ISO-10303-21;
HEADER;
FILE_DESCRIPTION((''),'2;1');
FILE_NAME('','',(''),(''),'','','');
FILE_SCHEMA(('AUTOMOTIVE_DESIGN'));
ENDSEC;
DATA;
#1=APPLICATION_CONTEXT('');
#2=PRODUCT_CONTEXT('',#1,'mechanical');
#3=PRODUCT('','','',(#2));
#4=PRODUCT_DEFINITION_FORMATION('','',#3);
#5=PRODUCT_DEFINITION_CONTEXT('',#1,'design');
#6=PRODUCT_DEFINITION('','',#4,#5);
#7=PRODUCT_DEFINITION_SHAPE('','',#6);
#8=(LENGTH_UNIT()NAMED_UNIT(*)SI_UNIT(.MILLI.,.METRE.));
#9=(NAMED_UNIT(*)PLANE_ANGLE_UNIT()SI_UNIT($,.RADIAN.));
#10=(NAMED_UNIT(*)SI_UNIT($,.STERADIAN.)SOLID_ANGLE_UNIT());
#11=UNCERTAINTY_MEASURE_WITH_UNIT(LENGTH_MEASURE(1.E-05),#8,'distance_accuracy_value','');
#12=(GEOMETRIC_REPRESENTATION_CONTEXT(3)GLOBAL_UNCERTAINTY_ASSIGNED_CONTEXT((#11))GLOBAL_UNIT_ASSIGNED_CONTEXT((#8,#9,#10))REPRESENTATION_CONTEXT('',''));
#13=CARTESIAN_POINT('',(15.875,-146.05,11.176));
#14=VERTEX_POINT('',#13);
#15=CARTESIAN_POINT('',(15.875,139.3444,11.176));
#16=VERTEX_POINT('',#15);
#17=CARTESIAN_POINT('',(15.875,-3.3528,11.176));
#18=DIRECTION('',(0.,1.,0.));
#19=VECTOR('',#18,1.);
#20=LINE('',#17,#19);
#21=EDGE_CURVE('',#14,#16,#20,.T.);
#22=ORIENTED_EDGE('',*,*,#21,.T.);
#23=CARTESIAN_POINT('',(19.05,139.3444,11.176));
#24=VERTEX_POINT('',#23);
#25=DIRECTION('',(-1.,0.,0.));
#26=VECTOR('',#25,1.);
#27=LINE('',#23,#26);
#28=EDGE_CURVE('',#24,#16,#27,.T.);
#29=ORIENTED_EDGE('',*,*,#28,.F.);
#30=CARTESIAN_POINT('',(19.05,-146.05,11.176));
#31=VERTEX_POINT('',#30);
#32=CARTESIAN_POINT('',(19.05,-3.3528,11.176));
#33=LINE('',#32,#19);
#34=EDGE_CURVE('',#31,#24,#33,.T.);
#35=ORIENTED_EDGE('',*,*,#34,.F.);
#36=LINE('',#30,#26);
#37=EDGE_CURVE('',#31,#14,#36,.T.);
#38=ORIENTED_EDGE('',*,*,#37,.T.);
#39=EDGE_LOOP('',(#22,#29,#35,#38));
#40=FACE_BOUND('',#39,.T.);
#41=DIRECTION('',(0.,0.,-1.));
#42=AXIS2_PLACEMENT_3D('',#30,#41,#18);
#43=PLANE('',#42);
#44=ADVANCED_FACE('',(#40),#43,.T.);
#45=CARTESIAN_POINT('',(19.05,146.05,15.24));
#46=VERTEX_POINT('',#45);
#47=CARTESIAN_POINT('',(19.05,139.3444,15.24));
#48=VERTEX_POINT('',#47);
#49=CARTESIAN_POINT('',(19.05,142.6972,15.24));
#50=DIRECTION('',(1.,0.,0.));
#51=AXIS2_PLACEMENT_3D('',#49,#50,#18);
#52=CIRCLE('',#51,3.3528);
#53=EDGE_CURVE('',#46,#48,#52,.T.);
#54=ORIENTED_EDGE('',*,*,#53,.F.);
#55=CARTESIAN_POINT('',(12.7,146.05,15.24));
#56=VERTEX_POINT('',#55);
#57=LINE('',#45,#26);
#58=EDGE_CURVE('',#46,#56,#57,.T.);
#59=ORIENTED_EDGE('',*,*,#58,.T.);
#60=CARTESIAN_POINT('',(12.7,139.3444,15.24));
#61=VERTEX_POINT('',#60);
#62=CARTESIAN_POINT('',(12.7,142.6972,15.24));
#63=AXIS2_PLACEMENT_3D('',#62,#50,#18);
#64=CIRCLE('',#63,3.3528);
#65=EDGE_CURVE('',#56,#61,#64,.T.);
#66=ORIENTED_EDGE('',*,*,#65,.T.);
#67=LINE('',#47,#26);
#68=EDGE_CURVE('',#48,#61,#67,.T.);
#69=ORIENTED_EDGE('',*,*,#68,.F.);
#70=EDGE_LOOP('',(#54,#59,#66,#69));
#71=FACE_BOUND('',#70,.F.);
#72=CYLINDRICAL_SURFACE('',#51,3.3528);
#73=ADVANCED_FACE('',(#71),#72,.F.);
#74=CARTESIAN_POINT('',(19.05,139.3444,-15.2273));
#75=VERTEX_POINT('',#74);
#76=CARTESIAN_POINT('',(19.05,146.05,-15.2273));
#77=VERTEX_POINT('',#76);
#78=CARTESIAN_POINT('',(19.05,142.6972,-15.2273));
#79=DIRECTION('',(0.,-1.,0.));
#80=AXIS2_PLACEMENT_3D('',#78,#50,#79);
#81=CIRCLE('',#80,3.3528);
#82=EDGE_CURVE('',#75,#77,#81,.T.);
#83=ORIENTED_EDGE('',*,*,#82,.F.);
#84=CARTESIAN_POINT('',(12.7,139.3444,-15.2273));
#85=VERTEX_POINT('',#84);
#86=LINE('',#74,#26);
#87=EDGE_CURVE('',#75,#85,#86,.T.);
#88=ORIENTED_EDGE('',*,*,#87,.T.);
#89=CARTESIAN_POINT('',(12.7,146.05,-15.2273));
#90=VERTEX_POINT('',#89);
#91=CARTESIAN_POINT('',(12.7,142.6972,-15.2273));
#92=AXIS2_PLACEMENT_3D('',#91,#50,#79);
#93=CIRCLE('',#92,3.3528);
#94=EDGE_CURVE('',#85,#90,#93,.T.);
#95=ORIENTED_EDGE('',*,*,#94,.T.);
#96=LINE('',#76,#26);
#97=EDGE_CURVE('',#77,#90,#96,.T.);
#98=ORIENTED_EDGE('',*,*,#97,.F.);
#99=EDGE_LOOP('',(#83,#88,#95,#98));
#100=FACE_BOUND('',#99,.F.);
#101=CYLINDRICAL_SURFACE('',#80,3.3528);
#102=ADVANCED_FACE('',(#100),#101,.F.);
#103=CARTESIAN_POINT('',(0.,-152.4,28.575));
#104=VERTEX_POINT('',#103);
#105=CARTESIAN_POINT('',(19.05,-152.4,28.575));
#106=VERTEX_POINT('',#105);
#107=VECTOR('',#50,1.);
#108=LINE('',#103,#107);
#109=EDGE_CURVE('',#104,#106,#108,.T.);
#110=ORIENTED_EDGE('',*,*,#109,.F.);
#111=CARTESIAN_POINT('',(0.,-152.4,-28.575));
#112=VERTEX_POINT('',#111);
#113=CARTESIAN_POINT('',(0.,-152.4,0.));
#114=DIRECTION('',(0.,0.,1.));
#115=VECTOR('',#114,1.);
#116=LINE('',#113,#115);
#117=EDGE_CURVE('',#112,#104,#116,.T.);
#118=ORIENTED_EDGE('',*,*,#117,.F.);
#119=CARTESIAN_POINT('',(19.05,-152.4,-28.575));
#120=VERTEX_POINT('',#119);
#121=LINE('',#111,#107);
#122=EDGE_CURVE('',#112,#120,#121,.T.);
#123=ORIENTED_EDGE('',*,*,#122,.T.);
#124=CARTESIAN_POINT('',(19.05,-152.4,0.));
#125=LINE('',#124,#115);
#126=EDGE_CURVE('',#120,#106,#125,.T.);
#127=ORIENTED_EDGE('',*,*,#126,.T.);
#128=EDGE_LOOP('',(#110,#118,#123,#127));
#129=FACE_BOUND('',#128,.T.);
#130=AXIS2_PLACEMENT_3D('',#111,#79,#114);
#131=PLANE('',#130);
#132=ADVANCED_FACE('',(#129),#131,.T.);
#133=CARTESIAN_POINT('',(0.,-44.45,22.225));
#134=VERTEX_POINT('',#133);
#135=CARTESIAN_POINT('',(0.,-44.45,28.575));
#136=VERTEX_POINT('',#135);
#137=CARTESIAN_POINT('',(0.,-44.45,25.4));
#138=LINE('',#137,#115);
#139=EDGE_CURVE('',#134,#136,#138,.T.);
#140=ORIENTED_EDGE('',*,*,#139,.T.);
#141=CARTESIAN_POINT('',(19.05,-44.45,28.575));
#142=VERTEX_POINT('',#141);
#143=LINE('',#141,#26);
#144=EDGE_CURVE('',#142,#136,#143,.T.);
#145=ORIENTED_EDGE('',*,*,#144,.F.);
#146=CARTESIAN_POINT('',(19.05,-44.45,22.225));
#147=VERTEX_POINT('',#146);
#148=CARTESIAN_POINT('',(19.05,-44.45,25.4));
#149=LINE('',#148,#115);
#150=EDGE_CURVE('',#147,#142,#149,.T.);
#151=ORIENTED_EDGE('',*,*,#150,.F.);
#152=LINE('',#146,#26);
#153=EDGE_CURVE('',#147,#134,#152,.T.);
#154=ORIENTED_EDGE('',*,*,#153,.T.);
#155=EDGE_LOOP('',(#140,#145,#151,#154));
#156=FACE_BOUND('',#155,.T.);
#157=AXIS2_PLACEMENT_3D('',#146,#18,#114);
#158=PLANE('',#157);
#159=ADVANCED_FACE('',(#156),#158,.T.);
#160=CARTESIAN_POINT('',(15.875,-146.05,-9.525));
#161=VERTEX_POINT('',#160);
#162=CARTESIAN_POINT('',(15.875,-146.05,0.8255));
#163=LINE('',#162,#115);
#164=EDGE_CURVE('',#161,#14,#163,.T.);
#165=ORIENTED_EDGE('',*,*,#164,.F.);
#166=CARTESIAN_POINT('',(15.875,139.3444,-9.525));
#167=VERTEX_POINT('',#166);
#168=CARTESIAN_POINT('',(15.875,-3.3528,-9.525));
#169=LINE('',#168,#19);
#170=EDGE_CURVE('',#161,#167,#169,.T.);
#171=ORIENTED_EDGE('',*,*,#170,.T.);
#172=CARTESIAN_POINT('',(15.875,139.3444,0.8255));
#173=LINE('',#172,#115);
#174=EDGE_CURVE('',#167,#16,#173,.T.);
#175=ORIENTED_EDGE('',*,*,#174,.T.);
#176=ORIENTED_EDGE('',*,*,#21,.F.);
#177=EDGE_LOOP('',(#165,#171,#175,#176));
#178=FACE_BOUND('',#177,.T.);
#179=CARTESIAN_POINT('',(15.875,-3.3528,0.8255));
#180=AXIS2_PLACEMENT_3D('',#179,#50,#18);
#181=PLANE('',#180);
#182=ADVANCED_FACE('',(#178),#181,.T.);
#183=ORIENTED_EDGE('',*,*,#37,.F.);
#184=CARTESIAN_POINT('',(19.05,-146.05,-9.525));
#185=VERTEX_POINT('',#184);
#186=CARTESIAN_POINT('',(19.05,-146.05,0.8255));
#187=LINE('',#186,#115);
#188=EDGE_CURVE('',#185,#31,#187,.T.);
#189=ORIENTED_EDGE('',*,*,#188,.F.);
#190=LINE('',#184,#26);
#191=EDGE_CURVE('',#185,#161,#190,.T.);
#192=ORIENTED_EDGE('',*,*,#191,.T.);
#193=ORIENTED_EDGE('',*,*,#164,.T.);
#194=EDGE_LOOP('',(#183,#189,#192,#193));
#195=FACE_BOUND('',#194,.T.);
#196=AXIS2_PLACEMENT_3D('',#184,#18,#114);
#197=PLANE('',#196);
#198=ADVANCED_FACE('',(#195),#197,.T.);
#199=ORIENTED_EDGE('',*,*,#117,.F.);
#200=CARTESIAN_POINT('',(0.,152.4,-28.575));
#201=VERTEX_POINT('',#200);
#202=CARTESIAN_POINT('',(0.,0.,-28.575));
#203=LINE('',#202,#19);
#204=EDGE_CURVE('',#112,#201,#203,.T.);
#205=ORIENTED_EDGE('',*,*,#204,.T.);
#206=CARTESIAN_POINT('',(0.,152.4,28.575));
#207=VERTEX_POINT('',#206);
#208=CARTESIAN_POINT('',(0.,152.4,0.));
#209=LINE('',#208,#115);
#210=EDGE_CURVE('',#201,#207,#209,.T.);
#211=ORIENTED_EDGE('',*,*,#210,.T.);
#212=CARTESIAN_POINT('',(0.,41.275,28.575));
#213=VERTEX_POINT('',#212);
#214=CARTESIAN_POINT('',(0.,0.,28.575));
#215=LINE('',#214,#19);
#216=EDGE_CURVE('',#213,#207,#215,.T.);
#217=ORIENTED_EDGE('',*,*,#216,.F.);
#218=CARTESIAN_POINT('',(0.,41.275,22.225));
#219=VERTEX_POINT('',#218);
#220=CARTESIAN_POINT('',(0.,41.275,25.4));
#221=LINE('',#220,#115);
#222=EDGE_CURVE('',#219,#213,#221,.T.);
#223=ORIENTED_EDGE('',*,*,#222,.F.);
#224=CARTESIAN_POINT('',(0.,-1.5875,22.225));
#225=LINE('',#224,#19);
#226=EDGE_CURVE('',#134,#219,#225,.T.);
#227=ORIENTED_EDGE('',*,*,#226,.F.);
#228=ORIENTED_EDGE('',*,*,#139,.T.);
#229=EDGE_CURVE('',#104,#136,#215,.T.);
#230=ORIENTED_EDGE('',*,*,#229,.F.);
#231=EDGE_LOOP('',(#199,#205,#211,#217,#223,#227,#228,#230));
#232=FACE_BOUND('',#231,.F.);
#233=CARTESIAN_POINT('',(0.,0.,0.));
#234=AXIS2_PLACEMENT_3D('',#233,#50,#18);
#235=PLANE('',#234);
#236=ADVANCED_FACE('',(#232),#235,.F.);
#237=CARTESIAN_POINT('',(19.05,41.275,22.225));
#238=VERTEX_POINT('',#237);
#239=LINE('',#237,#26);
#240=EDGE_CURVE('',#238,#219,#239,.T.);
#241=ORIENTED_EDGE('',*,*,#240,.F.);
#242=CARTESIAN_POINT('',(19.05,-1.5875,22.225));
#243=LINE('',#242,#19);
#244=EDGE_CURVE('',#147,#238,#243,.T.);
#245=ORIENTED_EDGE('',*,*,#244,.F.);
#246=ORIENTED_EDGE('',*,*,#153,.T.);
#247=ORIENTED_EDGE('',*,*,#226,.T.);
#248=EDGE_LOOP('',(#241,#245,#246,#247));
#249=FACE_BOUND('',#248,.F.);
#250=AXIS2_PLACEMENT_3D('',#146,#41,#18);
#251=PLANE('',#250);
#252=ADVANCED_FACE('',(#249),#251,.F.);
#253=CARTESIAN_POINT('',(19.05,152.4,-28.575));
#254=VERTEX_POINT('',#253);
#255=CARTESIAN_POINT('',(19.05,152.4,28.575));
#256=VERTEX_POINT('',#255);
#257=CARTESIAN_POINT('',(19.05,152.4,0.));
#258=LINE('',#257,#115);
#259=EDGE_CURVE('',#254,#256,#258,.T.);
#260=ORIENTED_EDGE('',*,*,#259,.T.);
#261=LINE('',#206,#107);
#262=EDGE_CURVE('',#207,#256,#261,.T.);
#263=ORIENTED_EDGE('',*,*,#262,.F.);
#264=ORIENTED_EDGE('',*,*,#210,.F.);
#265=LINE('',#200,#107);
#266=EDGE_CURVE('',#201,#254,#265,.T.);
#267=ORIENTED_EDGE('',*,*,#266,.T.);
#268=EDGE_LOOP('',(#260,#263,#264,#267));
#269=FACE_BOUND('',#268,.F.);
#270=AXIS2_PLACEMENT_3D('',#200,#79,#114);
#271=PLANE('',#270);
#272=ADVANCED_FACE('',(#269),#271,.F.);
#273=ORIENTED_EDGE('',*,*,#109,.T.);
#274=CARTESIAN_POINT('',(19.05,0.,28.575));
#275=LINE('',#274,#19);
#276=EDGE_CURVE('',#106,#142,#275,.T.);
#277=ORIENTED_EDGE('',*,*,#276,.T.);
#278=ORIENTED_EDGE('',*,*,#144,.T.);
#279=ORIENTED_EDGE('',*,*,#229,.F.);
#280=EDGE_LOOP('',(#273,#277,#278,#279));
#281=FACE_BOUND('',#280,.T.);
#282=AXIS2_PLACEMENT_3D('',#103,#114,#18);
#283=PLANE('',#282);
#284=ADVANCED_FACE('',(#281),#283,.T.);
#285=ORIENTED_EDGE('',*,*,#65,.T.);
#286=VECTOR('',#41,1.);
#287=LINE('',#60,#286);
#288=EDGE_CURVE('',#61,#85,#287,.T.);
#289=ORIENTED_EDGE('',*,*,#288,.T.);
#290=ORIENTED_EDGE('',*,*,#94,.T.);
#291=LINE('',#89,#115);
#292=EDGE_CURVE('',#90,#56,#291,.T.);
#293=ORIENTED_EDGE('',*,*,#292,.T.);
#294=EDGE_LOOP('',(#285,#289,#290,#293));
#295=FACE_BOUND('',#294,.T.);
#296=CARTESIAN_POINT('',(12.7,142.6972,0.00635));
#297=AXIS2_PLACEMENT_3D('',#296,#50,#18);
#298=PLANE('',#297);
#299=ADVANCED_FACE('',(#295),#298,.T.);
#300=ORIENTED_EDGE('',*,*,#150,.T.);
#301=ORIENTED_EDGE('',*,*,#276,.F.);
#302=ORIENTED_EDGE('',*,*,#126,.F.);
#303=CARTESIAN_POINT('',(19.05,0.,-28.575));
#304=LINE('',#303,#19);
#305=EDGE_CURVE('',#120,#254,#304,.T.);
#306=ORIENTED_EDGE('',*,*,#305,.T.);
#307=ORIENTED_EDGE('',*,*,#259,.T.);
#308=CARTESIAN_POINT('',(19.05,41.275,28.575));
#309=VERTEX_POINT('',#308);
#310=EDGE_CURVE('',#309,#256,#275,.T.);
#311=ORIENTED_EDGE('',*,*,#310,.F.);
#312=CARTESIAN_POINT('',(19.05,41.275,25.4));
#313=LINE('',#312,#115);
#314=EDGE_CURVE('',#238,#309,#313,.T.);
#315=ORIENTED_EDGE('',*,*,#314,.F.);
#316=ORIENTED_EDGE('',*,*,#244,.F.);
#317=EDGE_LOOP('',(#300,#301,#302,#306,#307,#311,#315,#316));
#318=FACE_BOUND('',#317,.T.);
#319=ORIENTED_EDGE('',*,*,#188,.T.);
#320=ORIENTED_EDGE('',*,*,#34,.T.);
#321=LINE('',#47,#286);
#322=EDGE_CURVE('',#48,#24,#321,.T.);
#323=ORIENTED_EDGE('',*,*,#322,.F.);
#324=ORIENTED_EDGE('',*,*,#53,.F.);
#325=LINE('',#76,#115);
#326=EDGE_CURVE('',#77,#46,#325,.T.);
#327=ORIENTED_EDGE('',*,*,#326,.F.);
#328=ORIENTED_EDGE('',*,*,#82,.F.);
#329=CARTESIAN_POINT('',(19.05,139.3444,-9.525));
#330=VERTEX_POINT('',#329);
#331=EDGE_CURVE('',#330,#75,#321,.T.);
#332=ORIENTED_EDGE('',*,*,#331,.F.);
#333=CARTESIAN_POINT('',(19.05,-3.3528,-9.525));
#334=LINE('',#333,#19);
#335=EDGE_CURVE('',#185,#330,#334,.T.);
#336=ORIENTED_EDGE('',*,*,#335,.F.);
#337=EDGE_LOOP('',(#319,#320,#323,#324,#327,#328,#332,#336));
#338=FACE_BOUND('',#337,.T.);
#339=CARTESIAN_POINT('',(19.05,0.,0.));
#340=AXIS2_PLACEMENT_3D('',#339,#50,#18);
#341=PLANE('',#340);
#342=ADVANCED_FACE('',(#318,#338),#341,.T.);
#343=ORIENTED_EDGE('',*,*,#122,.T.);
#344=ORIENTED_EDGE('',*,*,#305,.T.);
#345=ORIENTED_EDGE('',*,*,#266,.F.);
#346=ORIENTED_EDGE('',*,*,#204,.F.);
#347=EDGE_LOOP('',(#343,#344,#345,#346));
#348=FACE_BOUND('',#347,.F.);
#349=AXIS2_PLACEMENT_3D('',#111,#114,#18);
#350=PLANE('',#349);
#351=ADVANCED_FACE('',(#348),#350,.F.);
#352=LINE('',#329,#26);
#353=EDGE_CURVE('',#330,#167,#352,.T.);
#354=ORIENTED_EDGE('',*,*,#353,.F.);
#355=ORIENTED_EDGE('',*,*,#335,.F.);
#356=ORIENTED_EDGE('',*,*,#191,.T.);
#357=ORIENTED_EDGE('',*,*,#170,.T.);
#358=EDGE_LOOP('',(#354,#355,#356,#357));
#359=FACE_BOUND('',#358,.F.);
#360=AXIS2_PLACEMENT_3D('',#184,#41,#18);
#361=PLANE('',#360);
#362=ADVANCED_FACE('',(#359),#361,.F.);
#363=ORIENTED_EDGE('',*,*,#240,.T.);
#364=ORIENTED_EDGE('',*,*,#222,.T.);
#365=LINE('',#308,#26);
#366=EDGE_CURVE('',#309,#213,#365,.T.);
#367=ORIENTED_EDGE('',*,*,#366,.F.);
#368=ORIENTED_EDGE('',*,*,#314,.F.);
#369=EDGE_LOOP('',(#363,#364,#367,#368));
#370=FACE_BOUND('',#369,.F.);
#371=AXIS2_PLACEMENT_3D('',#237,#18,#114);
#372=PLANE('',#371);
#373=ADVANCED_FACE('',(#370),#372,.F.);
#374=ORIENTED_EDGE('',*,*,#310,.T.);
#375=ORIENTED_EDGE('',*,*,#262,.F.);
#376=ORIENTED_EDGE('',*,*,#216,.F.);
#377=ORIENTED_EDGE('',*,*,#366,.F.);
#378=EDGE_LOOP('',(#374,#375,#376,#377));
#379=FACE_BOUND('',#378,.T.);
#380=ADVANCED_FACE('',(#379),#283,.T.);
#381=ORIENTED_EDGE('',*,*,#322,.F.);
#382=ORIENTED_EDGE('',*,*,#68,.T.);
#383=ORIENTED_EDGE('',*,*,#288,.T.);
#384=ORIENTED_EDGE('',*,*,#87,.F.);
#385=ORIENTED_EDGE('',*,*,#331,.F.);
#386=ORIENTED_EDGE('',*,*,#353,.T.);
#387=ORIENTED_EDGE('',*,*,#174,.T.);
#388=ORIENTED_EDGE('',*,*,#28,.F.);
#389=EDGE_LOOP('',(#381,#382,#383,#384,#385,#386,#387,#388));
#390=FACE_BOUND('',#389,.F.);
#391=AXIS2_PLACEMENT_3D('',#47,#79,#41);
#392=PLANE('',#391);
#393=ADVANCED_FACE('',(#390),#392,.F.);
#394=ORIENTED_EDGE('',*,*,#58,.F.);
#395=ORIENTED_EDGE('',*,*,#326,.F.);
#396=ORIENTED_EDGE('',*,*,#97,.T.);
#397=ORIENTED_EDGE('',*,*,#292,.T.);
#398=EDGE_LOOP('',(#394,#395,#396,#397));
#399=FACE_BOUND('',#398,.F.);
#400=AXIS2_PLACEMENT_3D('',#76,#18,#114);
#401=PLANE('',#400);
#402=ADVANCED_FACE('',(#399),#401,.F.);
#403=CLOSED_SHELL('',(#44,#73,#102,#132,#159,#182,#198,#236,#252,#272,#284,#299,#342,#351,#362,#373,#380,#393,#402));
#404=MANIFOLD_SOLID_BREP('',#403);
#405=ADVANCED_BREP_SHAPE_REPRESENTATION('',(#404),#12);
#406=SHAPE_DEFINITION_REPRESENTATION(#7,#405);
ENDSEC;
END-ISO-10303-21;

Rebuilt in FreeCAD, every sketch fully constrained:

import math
import FreeCAD as App
import Part
import Sketcher
from FreeCAD import Vector
Q = App.Units.Quantity

doc = App.newDocument("Part")
params = doc.addObject("Spreadsheet::Sheet", "Params")
for row, (alias, value) in enumerate([
    ("sketch1_width", "12 in"),
    ("sketch1_height", "2.25 in"),
    ("pad1_length", "0.75 in"),
    ("sketch2_radius", "0.132 in"),
    ("pocket1_length", "0.25 in"),
    ("sketch3_width", "11.236 in"),
    ("sketch3_height", "0.815 in"),
    ("pocket2_length", "0.125 in"),
    ("sketch4_height", "0.25 in"),
    ("sketch4_width", "3.375 in"),
], start=1):
    params.set(f"A{row}", alias)
    params.set(f"B{row}", "=" + value)
    params.setAlias(f"B{row}", alias)

body = doc.addObject("PartDesign::Body", "Body")

sketch1 = body.newObject("Sketcher::SketchObject", "Sketch")
sketch1.AttachmentSupport = (doc.getObject("YZ_Plane"), [""])
sketch1.MapMode = "FlatFace"
sketch1.addGeometry([
    Part.LineSegment(Vector(-152.4, 28.575, 0), Vector(-152.4, -28.575, 0)),
    Part.LineSegment(Vector(-152.4, -28.575, 0), Vector(152.4, -28.575, 0)),
    Part.LineSegment(Vector(152.4, -28.575, 0), Vector(152.4, 28.575, 0)),
    Part.LineSegment(Vector(152.4, 28.575, 0), Vector(-152.4, 28.575, 0)),
], False)
sketch1.addConstraint([
    Sketcher.Constraint("Coincident", 0, 2, 1, 1),
    Sketcher.Constraint("Coincident", 1, 2, 2, 1),
    Sketcher.Constraint("Coincident", 2, 2, 3, 1),
    Sketcher.Constraint("Coincident", 3, 2, 0, 1),
    Sketcher.Constraint("Vertical", 0),
    Sketcher.Constraint("Horizontal", 1),
    Sketcher.Constraint("Vertical", 2),
    Sketcher.Constraint("Horizontal", 3),
    Sketcher.Constraint("Symmetric", 0, 2, 2, 2, -1, 1),
    Sketcher.Constraint("DistanceX", 1, 1, 1, 2, Q("12 in")),
    Sketcher.Constraint("DistanceY", 0, 2, 0, 1, Q("2.25 in")),
])
sketch1.setExpression("Constraints[9]", "Params.sketch1_width")
sketch1.setExpression("Constraints[10]", "Params.sketch1_height")
pad1 = body.newObject("PartDesign::Pad", "Pad")
pad1.Profile = sketch1
pad1.setExpression("Length", "Params.pad1_length")

sketch2 = body.newObject("Sketcher::SketchObject", "Sketch001")
sketch2.AttachmentSupport = (doc.getObject("YZ_Plane"), [""])
sketch2.MapMode = "FlatFace"
sketch2.AttachmentOffset = App.Placement(Vector(0, 0, 0.75 * 25.4), App.Rotation())
sketch2.addGeometry([
    Part.ArcOfCircle(Part.Circle(Vector(142.6972, 15.24, 0), Vector(0, 0, 1), 3.3528), math.radians(0), math.radians(180)),
    Part.LineSegment(Vector(139.3444, 15.24, 0), Vector(139.3444, -15.2273, 0)),
    Part.ArcOfCircle(Part.Circle(Vector(142.6972, -15.2273, 0), Vector(0, 0, 1), 3.3528), math.radians(180), math.radians(360)),
    Part.LineSegment(Vector(146.05, -15.2273, 0), Vector(146.05, 15.24, 0)),
], False)
sketch2.addConstraint([
    Sketcher.Constraint("Tangent", 0, 2, 1, 1),
    Sketcher.Constraint("Tangent", 1, 2, 2, 1),
    Sketcher.Constraint("Tangent", 2, 2, 3, 1),
    Sketcher.Constraint("Tangent", 3, 2, 0, 1),
    Sketcher.Constraint("Vertical", 1),
    Sketcher.Constraint("Vertical", 3),
    Sketcher.Constraint("Radius", 0, Q("0.132 in")),
    Sketcher.Constraint("DistanceY", -1, 1, 0, 3, Q("0.6 in")),
    Sketcher.Constraint("DistanceX", -1, 1, 2, 2, Q("5.75 in")),
    Sketcher.Constraint("DistanceY", 1, 2, 1, 1, Q("1.1995 in")),
])
sketch2.setExpression("Constraints[6]", "Params.sketch2_radius")
pocket1 = body.newObject("PartDesign::Pocket", "Pocket")
pocket1.Profile = sketch2
pocket1.setExpression("Length", "Params.pocket1_length")

sketch3 = body.newObject("Sketcher::SketchObject", "Sketch002")
sketch3.AttachmentSupport = (doc.getObject("YZ_Plane"), [""])
sketch3.MapMode = "FlatFace"
sketch3.AttachmentOffset = App.Placement(Vector(0, 0, 0.75 * 25.4), App.Rotation())
sketch3.addGeometry([
    Part.LineSegment(Vector(-146.05, 11.176, 0), Vector(-146.05, -9.525, 0)),
    Part.LineSegment(Vector(-146.05, -9.525, 0), Vector(139.3444, -9.525, 0)),
    Part.LineSegment(Vector(139.3444, -9.525, 0), Vector(139.3444, 11.176, 0)),
    Part.LineSegment(Vector(139.3444, 11.176, 0), Vector(-146.05, 11.176, 0)),
], False)
sketch3.addConstraint([
    Sketcher.Constraint("Coincident", 0, 2, 1, 1),
    Sketcher.Constraint("Coincident", 1, 2, 2, 1),
    Sketcher.Constraint("Coincident", 2, 2, 3, 1),
    Sketcher.Constraint("Coincident", 3, 2, 0, 1),
    Sketcher.Constraint("Vertical", 0),
    Sketcher.Constraint("Horizontal", 1),
    Sketcher.Constraint("Vertical", 2),
    Sketcher.Constraint("Horizontal", 3),
    Sketcher.Constraint("DistanceX", 1, 1, 1, 2, Q("11.236 in")),
    Sketcher.Constraint("DistanceY", 0, 2, 0, 1, Q("0.815 in")),
    Sketcher.Constraint("DistanceX", 0, 2, -1, 1, Q("5.75 in")),
    Sketcher.Constraint("DistanceY", -1, 1, 2, 2, Q("0.44 in")),
])
sketch3.setExpression("Constraints[8]", "Params.sketch3_width")
sketch3.setExpression("Constraints[9]", "Params.sketch3_height")
pocket2 = body.newObject("PartDesign::Pocket", "Pocket001")
pocket2.Profile = sketch3
pocket2.setExpression("Length", "Params.pocket2_length")

sketch4 = body.newObject("Sketcher::SketchObject", "Sketch003")
sketch4.AttachmentSupport = (doc.getObject("YZ_Plane"), [""])
sketch4.MapMode = "FlatFace"
sketch4.AttachmentOffset = App.Placement(Vector(0, 0, 0.75 * 25.4), App.Rotation())
sketch4.addGeometry([
    Part.LineSegment(Vector(-44.45, 28.575, 0), Vector(-44.45, 22.225, 0)),
    Part.LineSegment(Vector(-44.45, 22.225, 0), Vector(41.275, 22.225, 0)),
    Part.LineSegment(Vector(41.275, 22.225, 0), Vector(41.275, 28.575, 0)),
    Part.LineSegment(Vector(41.275, 28.575, 0), Vector(-44.45, 28.575, 0)),
], False)
sketch4.addConstraint([
    Sketcher.Constraint("Coincident", 0, 2, 1, 1),
    Sketcher.Constraint("Coincident", 1, 2, 2, 1),
    Sketcher.Constraint("Coincident", 2, 2, 3, 1),
    Sketcher.Constraint("Coincident", 3, 2, 0, 1),
    Sketcher.Constraint("Vertical", 0),
    Sketcher.Constraint("Horizontal", 1),
    Sketcher.Constraint("Vertical", 2),
    Sketcher.Constraint("Horizontal", 3),
    Sketcher.Constraint("DistanceY", 0, 2, 0, 1, Q("0.25 in")),
    Sketcher.Constraint("DistanceX", 1, 1, 1, 2, Q("3.375 in")),
    Sketcher.Constraint("DistanceX", 0, 2, -1, 1, Q("1.75 in")),
    Sketcher.Constraint("DistanceY", -1, 1, 0, 2, Q("0.875 in")),
])
sketch4.setExpression("Constraints[8]", "Params.sketch4_height")
sketch4.setExpression("Constraints[9]", "Params.sketch4_width")
pocket3 = body.newObject("PartDesign::Pocket", "Pocket002")
pocket3.Profile = sketch4
pocket3.Type = "ThroughAll"

doc.recompute()
